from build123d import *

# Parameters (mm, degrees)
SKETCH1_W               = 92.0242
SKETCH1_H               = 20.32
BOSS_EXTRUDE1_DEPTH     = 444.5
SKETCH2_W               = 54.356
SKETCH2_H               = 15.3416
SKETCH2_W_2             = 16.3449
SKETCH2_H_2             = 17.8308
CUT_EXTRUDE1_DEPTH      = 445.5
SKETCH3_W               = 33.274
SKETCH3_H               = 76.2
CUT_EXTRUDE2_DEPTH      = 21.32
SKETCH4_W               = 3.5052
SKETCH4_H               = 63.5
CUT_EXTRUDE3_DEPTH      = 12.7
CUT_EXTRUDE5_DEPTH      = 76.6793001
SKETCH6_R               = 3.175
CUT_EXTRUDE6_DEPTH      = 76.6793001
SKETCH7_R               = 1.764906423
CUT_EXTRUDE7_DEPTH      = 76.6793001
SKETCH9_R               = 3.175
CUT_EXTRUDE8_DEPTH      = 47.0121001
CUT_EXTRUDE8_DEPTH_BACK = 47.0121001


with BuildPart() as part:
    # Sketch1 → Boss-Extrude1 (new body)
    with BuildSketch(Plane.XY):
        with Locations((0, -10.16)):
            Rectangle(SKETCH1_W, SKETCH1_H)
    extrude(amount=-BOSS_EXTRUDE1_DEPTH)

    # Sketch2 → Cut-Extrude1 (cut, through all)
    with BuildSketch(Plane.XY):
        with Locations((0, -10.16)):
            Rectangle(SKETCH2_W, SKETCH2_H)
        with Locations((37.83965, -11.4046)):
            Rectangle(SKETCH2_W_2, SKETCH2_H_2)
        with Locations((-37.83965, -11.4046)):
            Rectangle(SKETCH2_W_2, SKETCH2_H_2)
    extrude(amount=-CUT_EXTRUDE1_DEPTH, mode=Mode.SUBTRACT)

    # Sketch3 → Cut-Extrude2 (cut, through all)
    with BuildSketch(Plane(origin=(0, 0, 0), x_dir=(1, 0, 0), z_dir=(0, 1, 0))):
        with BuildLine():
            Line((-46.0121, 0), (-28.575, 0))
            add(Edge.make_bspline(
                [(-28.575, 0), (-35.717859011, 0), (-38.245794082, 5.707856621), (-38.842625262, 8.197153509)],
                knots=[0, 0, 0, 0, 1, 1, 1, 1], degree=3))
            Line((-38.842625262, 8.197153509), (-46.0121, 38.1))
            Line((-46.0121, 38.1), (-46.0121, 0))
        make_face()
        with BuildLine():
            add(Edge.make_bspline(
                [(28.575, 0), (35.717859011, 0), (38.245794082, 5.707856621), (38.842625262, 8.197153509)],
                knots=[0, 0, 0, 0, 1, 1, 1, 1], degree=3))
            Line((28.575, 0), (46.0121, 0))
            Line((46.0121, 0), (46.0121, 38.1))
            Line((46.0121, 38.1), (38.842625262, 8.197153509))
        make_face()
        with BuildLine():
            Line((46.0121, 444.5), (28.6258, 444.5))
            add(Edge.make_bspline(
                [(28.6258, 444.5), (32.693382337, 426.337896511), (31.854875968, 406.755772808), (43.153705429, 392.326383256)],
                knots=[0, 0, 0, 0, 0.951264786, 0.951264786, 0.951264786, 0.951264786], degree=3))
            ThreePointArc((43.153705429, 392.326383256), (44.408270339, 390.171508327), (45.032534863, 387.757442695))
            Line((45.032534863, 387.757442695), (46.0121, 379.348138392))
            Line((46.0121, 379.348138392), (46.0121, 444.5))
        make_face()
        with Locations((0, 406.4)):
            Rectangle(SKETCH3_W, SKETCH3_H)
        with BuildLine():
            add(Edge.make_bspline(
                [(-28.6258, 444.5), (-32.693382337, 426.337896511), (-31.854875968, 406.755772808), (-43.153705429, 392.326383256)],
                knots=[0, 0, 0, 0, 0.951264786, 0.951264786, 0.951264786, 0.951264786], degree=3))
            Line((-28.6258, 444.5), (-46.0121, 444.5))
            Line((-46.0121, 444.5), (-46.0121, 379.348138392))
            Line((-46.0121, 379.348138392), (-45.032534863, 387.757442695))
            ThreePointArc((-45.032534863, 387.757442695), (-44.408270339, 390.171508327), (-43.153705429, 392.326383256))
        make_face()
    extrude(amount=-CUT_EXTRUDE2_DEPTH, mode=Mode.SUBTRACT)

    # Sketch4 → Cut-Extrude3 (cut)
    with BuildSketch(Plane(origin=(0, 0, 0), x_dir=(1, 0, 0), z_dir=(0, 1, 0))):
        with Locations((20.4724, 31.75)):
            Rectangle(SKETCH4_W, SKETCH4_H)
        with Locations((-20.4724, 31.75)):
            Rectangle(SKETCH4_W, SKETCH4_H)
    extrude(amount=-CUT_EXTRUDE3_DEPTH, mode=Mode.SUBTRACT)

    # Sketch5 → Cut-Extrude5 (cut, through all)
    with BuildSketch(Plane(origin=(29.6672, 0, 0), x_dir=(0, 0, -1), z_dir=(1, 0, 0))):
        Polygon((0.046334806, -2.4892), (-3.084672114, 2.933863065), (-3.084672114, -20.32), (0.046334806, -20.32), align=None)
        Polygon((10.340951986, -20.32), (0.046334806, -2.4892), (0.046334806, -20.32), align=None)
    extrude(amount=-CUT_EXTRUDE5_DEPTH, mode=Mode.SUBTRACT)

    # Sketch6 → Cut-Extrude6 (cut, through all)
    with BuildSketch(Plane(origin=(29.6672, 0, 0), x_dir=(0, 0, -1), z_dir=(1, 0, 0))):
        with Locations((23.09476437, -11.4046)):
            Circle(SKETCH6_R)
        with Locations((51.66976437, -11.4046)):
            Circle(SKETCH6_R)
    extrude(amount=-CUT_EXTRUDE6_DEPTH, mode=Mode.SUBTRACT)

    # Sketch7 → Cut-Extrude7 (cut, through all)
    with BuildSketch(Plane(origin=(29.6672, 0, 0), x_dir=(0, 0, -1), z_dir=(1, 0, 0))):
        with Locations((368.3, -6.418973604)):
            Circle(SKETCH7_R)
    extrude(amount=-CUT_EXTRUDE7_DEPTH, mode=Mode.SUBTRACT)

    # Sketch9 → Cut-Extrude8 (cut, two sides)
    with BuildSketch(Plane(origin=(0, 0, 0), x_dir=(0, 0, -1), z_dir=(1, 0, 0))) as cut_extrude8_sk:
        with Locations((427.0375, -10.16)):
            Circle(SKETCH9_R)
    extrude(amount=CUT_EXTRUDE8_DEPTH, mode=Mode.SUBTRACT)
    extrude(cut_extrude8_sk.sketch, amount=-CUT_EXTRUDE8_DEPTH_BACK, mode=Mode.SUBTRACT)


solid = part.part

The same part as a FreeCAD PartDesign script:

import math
import FreeCAD as App
import Part
import Sketcher
Q = App.Units.Quantity


def add_polygon(sketch, points):
    """Adds a closed chain of lines whose ends are joined by coincident constraints."""
    first, n = sketch.GeometryCount, len(points)
    for a, b in zip(points, points[1:] + points[:1]):
        sketch.addGeometry(Part.LineSegment(App.Vector(*a, 0), App.Vector(*b, 0)), False)
    for i in range(n):
        sketch.addConstraint(Sketcher.Constraint("Coincident", first + i, 2, first + (i + 1) % n, 1))

doc = App.newDocument("Part")
body = doc.addObject("PartDesign::Body", "Body")

sketch1 = body.newObject("Sketcher::SketchObject", "Sketch")
sketch1.AttachmentSupport = (doc.getObject("XY_Plane"), [""])
sketch1.MapMode = "FlatFace"
add_polygon(sketch1, [(-46, 0), (-46, -20), (46, -20), (46, 0)])
sketch1.addConstraint(Sketcher.Constraint("Vertical", 0))
sketch1.addConstraint(Sketcher.Constraint("Horizontal", 1))
sketch1.addConstraint(Sketcher.Constraint("Vertical", 2))
sketch1.addConstraint(Sketcher.Constraint("Horizontal", 3))
sketch1.addConstraint(Sketcher.Constraint("Symmetric", 2, 2, 3, 2, -1, 1))
sketch1.addConstraint(Sketcher.Constraint("DistanceY", 0, 2, 0, 1, Q("0.8 in")))
sketch1.addConstraint(Sketcher.Constraint("DistanceX", 1, 1, 1, 2, Q("3.623 in")))
pad1 = body.newObject("PartDesign::Pad", "Pad")
pad1.Profile = sketch1
pad1.Length = Q("17.5 in")
pad1.Reversed = True

sketch2 = body.newObject("Sketcher::SketchObject", "Sketch001")
sketch2.AttachmentSupport = (doc.getObject("XY_Plane"), [""])
sketch2.MapMode = "FlatFace"
add_polygon(sketch2, [(-27, -2), (-27, -18), (27, -18), (27, -2)])
add_polygon(sketch2, [(30, -2), (30, -20), (46, -20), (46, -2)])
add_polygon(sketch2, [(-46, -2), (-46, -20), (-30, -20), (-30, -2)])
sketch2.addConstraint(Sketcher.Constraint("Vertical", 0))
sketch2.addConstraint(Sketcher.Constraint("Horizontal", 1))
sketch2.addConstraint(Sketcher.Constraint("Vertical", 2))
sketch2.addConstraint(Sketcher.Constraint("Horizontal", 3))
sketch2.addConstraint(Sketcher.Constraint("Vertical", 4))
sketch2.addConstraint(Sketcher.Constraint("Horizontal", 5))
sketch2.addConstraint(Sketcher.Constraint("Vertical", 6))
sketch2.addConstraint(Sketcher.Constraint("Horizontal", 7))
sketch2.addConstraint(Sketcher.Constraint("Vertical", 8))
sketch2.addConstraint(Sketcher.Constraint("Horizontal", 9))
sketch2.addConstraint(Sketcher.Constraint("Vertical", 10))
sketch2.addConstraint(Sketcher.Constraint("Horizontal", 11))
sketch2.addConstraint(Sketcher.Constraint("Symmetric", 5, 2, 8, 2, -2))
sketch2.addConstraint(Sketcher.Constraint("Symmetric", 7, 2, 10, 2, -2))
sketch2.addConstraint(Sketcher.Constraint("Horizontal", 3, 2, 6, 2))
sketch2.addConstraint(Sketcher.Constraint("DistanceX", 1, 1, 1, 2, Q("2.14 in")))
sketch2.addConstraint(Sketcher.Constraint("DistanceY", 4, 2, -1, 1, Q("0.8 in")))
sketch2.addConstraint(Sketcher.Constraint("DistanceY", 0, 2, 0, 1, Q("0.604 in")))
sketch2.addConstraint(Sketcher.Constraint("DistanceY", 4, 2, 4, 1, Q("0.702 in")))
sketch2.addConstraint(Sketcher.Constraint("DistanceX", 0, 2, -1, 1, Q("1.07 in")))
sketch2.addConstraint(Sketcher.Constraint("DistanceX", 5, 1, 5, 2, Q("0.6435 in")))
sketch2.addConstraint(Sketcher.Constraint("DistanceX", -1, 1, 4, 2, Q("1.168 in")))
pocket1 = body.newObject("PartDesign::Pocket", "Pocket")
pocket1.Profile = sketch2
pocket1.Type = "ThroughAll"

sketch3 = body.newObject("Sketcher::SketchObject", "Sketch002")
sketch3.AttachmentSupport = (doc.getObject("XZ_Plane"), [""])
sketch3.MapMode = "FlatFace"
sketch3.addGeometry(Part.LineSegment(App.Vector(-46.0121, 0, 0), App.Vector(-28.575, 0, 0)), False)
sketch3.addGeometry(Part.BSplineCurve([App.Vector(-28.575, 0, 0), App.Vector(-35.717859, 0, 0), App.Vector(-38.245794, -5.707857, 0), App.Vector(-38.842625, -8.197154, 0)], [4, 4], [0, 1], False, 3, [1, 1, 1, 1], False), False)
sketch3.addGeometry(Part.LineSegment(App.Vector(-38.842625, -8.197154, 0), App.Vector(-46.0121, -38.1, 0)), False)
sketch3.addGeometry(Part.LineSegment(App.Vector(-46.0121, -38.1, 0), App.Vector(-46.0121, 0, 0)), False)
sketch3.addGeometry(Part.BSplineCurve([App.Vector(28.575, 0, 0), App.Vector(35.717859, 0, 0), App.Vector(38.245794, -5.707857, 0), App.Vector(38.842625, -8.197154, 0)], [4, 4], [0, 1], False, 3, [1, 1, 1, 1], False), False)
sketch3.addGeometry(Part.LineSegment(App.Vector(28.575, 0, 0), App.Vector(46.0121, 0, 0)), False)
sketch3.addGeometry(Part.LineSegment(App.Vector(46.0121, 0, 0), App.Vector(46.0121, -38.1, 0)), False)
sketch3.addGeometry(Part.LineSegment(App.Vector(46.0121, -38.1, 0), App.Vector(38.842625, -8.197154, 0)), False)
sketch3.addGeometry(Part.LineSegment(App.Vector(46.0121, -444.5, 0), App.Vector(28.6258, -444.5, 0)), False)
sketch3.addGeometry(Part.BSplineCurve([App.Vector(28.6258, -444.5, 0), App.Vector(32.693382, -426.337897, 0), App.Vector(31.854876, -406.755773, 0), App.Vector(43.153705, -392.326383, 0)], [4, 4], [0, 0.951264786], False, 3, [1, 1, 1, 1], False), False)
sketch3.addGeometry(Part.ArcOfCircle(Part.Circle(App.Vector(35.970827, -386.701882, 0), App.Vector(0, 0, 1), 9.12298), math.radians(-38.062464), math.radians(-6.644205)), False)
sketch3.addGeometry(Part.LineSegment(App.Vector(45.032535, -387.757443, 0), App.Vector(46.0121, -379.348138, 0)), False)
sketch3.addGeometry(Part.LineSegment(App.Vector(46.0121, -379.348138, 0), App.Vector(46.0121, -444.5, 0)), False)
add_polygon(sketch3, [(-16.637, -444.5), (-16.637, -368.3), (16.637, -368.3), (16.637, -444.5)])
sketch3.addGeometry(Part.BSplineCurve([App.Vector(-28.6258, -444.5, 0), App.Vector(-32.693382, -426.337897, 0), App.Vector(-31.854876, -406.755773, 0), App.Vector(-43.153705, -392.326383, 0)], [4, 4], [0, 0.951264786], False, 3, [1, 1, 1, 1], False), False)
sketch3.addGeometry(Part.LineSegment(App.Vector(-28.6258, -444.5, 0), App.Vector(-46.0121, -444.5, 0)), False)
sketch3.addGeometry(Part.LineSegment(App.Vector(-46.0121, -444.5, 0), App.Vector(-46.0121, -379.348138, 0)), False)
sketch3.addGeometry(Part.LineSegment(App.Vector(-46.0121, -379.348138, 0), App.Vector(-45.032535, -387.757443, 0)), False)
sketch3.addGeometry(Part.ArcOfCircle(Part.Circle(App.Vector(-35.970827, -386.701882, 0), App.Vector(0, 0, 1), 9.12298), math.radians(-173.355795), math.radians(-141.937536)), False)
sketch3.addConstraint(Sketcher.Constraint("Block", 1))
sketch3.addConstraint(Sketcher.Constraint("Block", 4))
sketch3.addConstraint(Sketcher.Constraint("Block", 9))
sketch3.addConstraint(Sketcher.Constraint("Block", 17))
sketch3.addConstraint(Sketcher.Constraint("Coincident", 0, 2, 1, 1))
sketch3.addConstraint(Sketcher.Constraint("Coincident", 1, 2, 2, 1))
sketch3.addConstraint(Sketcher.Constraint("Coincident", 2, 2, 3, 1))
sketch3.addConstraint(Sketcher.Constraint("Coincident", 3, 2, 0, 1))
sketch3.addConstraint(Sketcher.Constraint("Coincident", 4, 1, 5, 1))
sketch3.addConstraint(Sketcher.Constraint("Coincident", 5, 2, 6, 1))
sketch3.addConstraint(Sketcher.Constraint("Coincident", 6, 2, 7, 1))
sketch3.addConstraint(Sketcher.Constraint("Coincident", 7, 2, 4, 2))
sketch3.addConstraint(Sketcher.Constraint("Coincident", 8, 2, 9, 1))
sketch3.addConstraint(Sketcher.Constraint("Coincident", 9, 2, 10, 1))
sketch3.addConstraint(Sketcher.Constraint("Coincident", 10, 2, 11, 1))
sketch3.addConstraint(Sketcher.Constraint("Coincident", 11, 2, 12, 1))
sketch3.addConstraint(Sketcher.Constraint("Coincident", 12, 2, 8, 1))
sketch3.addConstraint(Sketcher.Constraint("Coincident", 17, 1, 18, 1))
sketch3.addConstraint(Sketcher.Constraint("Coincident", 18, 2, 19, 1))
sketch3.addConstraint(Sketcher.Constraint("Coincident", 19, 2, 20, 1))
sketch3.addConstraint(Sketcher.Constraint("Coincident", 20, 2, 21, 1))
sketch3.addConstraint(Sketcher.Constraint("Coincident", 21, 2, 17, 2))
sketch3.addConstraint(Sketcher.Constraint("Horizontal", 0))
sketch3.addConstraint(Sketcher.Constraint("Vertical", 3))
sketch3.addConstraint(Sketcher.Constraint("Horizontal", 5))
sketch3.addConstraint(Sketcher.Constraint("Vertical", 6))
sketch3.addConstraint(Sketcher.Constraint("Horizontal", 8))
sketch3.addConstraint(Sketcher.Constraint("Vertical", 12))
sketch3.addConstraint(Sketcher.Constraint("Vertical", 13))
sketch3.addConstraint(Sketcher.Constraint("Horizontal", 14))
sketch3.addConstraint(Sketcher.Constraint("Vertical", 15))
sketch3.addConstraint(Sketcher.Constraint("Horizontal", 16))
sketch3.addConstraint(Sketcher.Constraint("Horizontal", 18))
sketch3.addConstraint(Sketcher.Constraint("Vertical", 19))
sketch3.addConstraint(Sketcher.Constraint("DistanceY", 13, 1, 13, 2, Q("3 in")))
sketch3.addConstraint(Sketcher.Constraint("DistanceY", 3, 1, 3, 2, Q("1.5 in")))
sketch3.addConstraint(Sketcher.Constraint("DistanceY", 6, 2, 6, 1, Q("1.5 in")))
sketch3.addConstraint(Sketcher.Constraint("DistanceY", 8, 2, 13, 2, Q("3 in")))
sketch3.addConstraint(Sketcher.Constraint("DistanceX", 14, 1, 14, 2, Q("1.31 in")))
sketch3.addConstraint(Sketcher.Constraint("DistanceX", 0, 1, 0, 2, Q("0.6865 in")))
sketch3.addConstraint(Sketcher.Constraint("DistanceX", 5, 1, 5, 2, Q("0.6865 in")))
sketch3.addConstraint(Sketcher.Constraint("DistanceX", 8, 2, 8, 1, Q("0.6845 in")))
sketch3.addConstraint(Sketcher.Constraint("DistanceX", 18, 2, 18, 1, Q("0.6845 in")))
sketch3.addConstraint(Sketcher.Constraint("DistanceX", 13, 2, -1, 1, Q("0.655 in")))
sketch3.addConstraint(Sketcher.Constraint("Radius", 10, Q("9.12298 mm")))
sketch3.addConstraint(Sketcher.Constraint("Radius", 21, Q("9.12298 mm")))
sketch3.addConstraint(Sketcher.Constraint("DistanceY", 12, 2, 12, 1, Q("65.151862 mm")))
sketch3.addConstraint(Sketcher.Constraint("DistanceY", 19, 1, 19, 2, Q("65.151862 mm")))
sketch3.addConstraint(Sketcher.Constraint("DistanceY", 21, 2, 21, 3, Q("5.624502 mm")))
sketch3.addConstraint(Sketcher.Constraint("DistanceY", 10, 3, -1, 1, Q("386.701882 mm")))
sketch3.addConstraint(Sketcher.Constraint("DistanceX", 10, 3, 10, 2, Q("9.061708 mm")))
sketch3.addConstraint(Sketcher.Constraint("DistanceX", 20, 2, 21, 3, Q("9.061708 mm")))
pocket2 = body.newObject("PartDesign::Pocket", "Pocket001")
pocket2.Profile = sketch3
pocket2.Type = "ThroughAll"
pocket2.Reversed = True

sketch4 = body.newObject("Sketcher::SketchObject", "Sketch003")
sketch4.AttachmentSupport = (doc.getObject("XZ_Plane"), [""])
sketch4.MapMode = "FlatFace"
add_polygon(sketch4, [(18.7, -63.5), (18.7, 0), (22.2, 0), (22.2, -63.5)])
add_polygon(sketch4, [(-22.2, -63.5), (-22.2, 0), (-18.7, 0), (-18.7, -63.5)])
sketch4.addConstraint(Sketcher.Constraint("Vertical", 0))
sketch4.addConstraint(Sketcher.Constraint("Horizontal", 1))
sketch4.addConstraint(Sketcher.Constraint("Vertical", 2))
sketch4.addConstraint(Sketcher.Constraint("Horizontal", 3))
sketch4.addConstraint(Sketcher.Constraint("Vertical", 4))
sketch4.addConstraint(Sketcher.Constraint("Horizontal", 5))
sketch4.addConstraint(Sketcher.Constraint("Vertical", 6))
sketch4.addConstraint(Sketcher.Constraint("Horizontal", 7))
sketch4.addConstraint(Sketcher.Constraint("Symmetric", 1, 2, 4, 2, -1, 1))
sketch4.addConstraint(Sketcher.Constraint("Symmetric", 0, 2, 5, 2, -2))
sketch4.addConstraint(Sketcher.Constraint("Horizontal", 3, 2, 6, 2))
sketch4.addConstraint(Sketcher.Constraint("DistanceY", 0, 1, 0, 2, Q("2.5 in")))
sketch4.addConstraint(Sketcher.Constraint("DistanceX", 1, 1, 1, 2, Q("0.138 in")))
sketch4.addConstraint(Sketcher.Constraint("DistanceX", 4, 2, 1, 2, Q("1.75 in")))
pocket3 = body.newObject("PartDesign::Pocket", "Pocket002")
pocket3.Profile = sketch4
pocket3.Length = Q("0.5 in")
pocket3.Reversed = True

sketch5 = body.newObject("Sketcher::SketchObject", "Sketch004")
sketch5.AttachmentSupport = (doc.getObject("YZ_Plane"), [""])
sketch5.MapMode = "FlatFace"
sketch5.AttachmentOffset = App.Placement(App.Vector(0, 0, 1.168 * 25.4), App.Rotation())
add_polygon(sketch5, [(-2, 0), (3, 3), (-20, 3), (-20, -10)])
sketch5.addConstraint(Sketcher.Constraint("Horizontal", 1))
sketch5.addConstraint(Sketcher.Constraint("Vertical", 2))
sketch5.addConstraint(Sketcher.Constraint("Parallel", 0, 3))
sketch5.addConstraint(Sketcher.Constraint("Angle", 0, Q("30 deg")))
sketch5.addConstraint(Sketcher.Constraint("DistanceX", 1, 2, -1, 1, Q("0.8 in")))
sketch5.addConstraint(Sketcher.Constraint("DistanceX", 3, 2, -1, 1, Q("0.098 in")))
sketch5.addConstraint(Sketcher.Constraint("DistanceX", 1, 2, 1, 1, Q("23.253863 mm")))
sketch5.addConstraint(Sketcher.Constraint("DistanceY", 2, 2, -1, 1, Q("10.340952 mm")))
pocket4 = body.newObject("PartDesign::Pocket", "Pocket003")
pocket4.Profile = sketch5
pocket4.Type = "ThroughAll"

sketch6 = body.newObject("Sketcher::SketchObject", "Sketch005")
sketch6.AttachmentSupport = (doc.getObject("YZ_Plane"), [""])
sketch6.MapMode = "FlatFace"
sketch6.AttachmentOffset = App.Placement(App.Vector(0, 0, 1.168 * 25.4), App.Rotation())
sketch6.addGeometry(Part.Circle(App.Vector(-11.4, -23.1, 0), App.Vector(0, 0, 1), 3.2), False)
sketch6.addGeometry(Part.Circle(App.Vector(-11.4, -51.7, 0), App.Vector(0, 0, 1), 3.2), False)
sketch6.addConstraint(Sketcher.Constraint("Equal", 0, 1))
sketch6.addConstraint(Sketcher.Constraint("Vertical", 0, 3, 1, 3))
sketch6.addConstraint(Sketcher.Constraint("Diameter", 0, Q("0.25 in")))
sketch6.addConstraint(Sketcher.Constraint("DistanceX", 0, 3, -1, 1, Q("0.449 in")))
sketch6.addConstraint(Sketcher.Constraint("DistanceY", 1, 3, 0, 3, Q("1.125 in")))
sketch6.addConstraint(Sketcher.Constraint("DistanceY", 0, 3, -1, 1, Q("23.094764 mm")))
pocket5 = body.newObject("PartDesign::Pocket", "Pocket004")
pocket5.Profile = sketch6
pocket5.Type = "ThroughAll"

sketch7 = body.newObject("Sketcher::SketchObject", "Sketch006")
sketch7.AttachmentSupport = (doc.getObject("YZ_Plane"), [""])
sketch7.MapMode = "FlatFace"
sketch7.AttachmentOffset = App.Placement(App.Vector(0, 0, 1.168 * 25.4), App.Rotation())
sketch7.addGeometry(Part.Circle(App.Vector(-6.4, -368.3, 0), App.Vector(0, 0, 1), 1.8), False)
sketch7.addConstraint(Sketcher.Constraint("DistanceY", 0, 3, -1, 1, Q("14.5 in")))
sketch7.addConstraint(Sketcher.Constraint("Diameter", 0, Q("3.529813 mm")))
sketch7.addConstraint(Sketcher.Constraint("DistanceX", 0, 3, -1, 1, Q("6.418974 mm")))
pocket6 = body.newObject("PartDesign::Pocket", "Pocket005")
pocket6.Profile = sketch7
pocket6.Type = "ThroughAll"

sketch8 = body.newObject("Sketcher::SketchObject", "Sketch007")
sketch8.AttachmentSupport = (doc.getObject("YZ_Plane"), [""])
sketch8.MapMode = "FlatFace"
sketch8.addGeometry(Part.Circle(App.Vector(-10.2, -427, 0), App.Vector(0, 0, 1), 3.2), False)
sketch8.addConstraint(Sketcher.Constraint("Diameter", 0, Q("0.25 in")))
sketch8.addConstraint(Sketcher.Constraint("DistanceX", 0, 3, -1, 1, Q("0.4 in")))
sketch8.addConstraint(Sketcher.Constraint("DistanceY", 0, 3, -1, 1, Q("16.8125 in")))
pocket7 = body.newObject("PartDesign::Pocket", "Pocket006")
pocket7.Profile = sketch8
pocket7.Type = "ThroughAll"
pocket7.Midplane = True

doc.recompute()
